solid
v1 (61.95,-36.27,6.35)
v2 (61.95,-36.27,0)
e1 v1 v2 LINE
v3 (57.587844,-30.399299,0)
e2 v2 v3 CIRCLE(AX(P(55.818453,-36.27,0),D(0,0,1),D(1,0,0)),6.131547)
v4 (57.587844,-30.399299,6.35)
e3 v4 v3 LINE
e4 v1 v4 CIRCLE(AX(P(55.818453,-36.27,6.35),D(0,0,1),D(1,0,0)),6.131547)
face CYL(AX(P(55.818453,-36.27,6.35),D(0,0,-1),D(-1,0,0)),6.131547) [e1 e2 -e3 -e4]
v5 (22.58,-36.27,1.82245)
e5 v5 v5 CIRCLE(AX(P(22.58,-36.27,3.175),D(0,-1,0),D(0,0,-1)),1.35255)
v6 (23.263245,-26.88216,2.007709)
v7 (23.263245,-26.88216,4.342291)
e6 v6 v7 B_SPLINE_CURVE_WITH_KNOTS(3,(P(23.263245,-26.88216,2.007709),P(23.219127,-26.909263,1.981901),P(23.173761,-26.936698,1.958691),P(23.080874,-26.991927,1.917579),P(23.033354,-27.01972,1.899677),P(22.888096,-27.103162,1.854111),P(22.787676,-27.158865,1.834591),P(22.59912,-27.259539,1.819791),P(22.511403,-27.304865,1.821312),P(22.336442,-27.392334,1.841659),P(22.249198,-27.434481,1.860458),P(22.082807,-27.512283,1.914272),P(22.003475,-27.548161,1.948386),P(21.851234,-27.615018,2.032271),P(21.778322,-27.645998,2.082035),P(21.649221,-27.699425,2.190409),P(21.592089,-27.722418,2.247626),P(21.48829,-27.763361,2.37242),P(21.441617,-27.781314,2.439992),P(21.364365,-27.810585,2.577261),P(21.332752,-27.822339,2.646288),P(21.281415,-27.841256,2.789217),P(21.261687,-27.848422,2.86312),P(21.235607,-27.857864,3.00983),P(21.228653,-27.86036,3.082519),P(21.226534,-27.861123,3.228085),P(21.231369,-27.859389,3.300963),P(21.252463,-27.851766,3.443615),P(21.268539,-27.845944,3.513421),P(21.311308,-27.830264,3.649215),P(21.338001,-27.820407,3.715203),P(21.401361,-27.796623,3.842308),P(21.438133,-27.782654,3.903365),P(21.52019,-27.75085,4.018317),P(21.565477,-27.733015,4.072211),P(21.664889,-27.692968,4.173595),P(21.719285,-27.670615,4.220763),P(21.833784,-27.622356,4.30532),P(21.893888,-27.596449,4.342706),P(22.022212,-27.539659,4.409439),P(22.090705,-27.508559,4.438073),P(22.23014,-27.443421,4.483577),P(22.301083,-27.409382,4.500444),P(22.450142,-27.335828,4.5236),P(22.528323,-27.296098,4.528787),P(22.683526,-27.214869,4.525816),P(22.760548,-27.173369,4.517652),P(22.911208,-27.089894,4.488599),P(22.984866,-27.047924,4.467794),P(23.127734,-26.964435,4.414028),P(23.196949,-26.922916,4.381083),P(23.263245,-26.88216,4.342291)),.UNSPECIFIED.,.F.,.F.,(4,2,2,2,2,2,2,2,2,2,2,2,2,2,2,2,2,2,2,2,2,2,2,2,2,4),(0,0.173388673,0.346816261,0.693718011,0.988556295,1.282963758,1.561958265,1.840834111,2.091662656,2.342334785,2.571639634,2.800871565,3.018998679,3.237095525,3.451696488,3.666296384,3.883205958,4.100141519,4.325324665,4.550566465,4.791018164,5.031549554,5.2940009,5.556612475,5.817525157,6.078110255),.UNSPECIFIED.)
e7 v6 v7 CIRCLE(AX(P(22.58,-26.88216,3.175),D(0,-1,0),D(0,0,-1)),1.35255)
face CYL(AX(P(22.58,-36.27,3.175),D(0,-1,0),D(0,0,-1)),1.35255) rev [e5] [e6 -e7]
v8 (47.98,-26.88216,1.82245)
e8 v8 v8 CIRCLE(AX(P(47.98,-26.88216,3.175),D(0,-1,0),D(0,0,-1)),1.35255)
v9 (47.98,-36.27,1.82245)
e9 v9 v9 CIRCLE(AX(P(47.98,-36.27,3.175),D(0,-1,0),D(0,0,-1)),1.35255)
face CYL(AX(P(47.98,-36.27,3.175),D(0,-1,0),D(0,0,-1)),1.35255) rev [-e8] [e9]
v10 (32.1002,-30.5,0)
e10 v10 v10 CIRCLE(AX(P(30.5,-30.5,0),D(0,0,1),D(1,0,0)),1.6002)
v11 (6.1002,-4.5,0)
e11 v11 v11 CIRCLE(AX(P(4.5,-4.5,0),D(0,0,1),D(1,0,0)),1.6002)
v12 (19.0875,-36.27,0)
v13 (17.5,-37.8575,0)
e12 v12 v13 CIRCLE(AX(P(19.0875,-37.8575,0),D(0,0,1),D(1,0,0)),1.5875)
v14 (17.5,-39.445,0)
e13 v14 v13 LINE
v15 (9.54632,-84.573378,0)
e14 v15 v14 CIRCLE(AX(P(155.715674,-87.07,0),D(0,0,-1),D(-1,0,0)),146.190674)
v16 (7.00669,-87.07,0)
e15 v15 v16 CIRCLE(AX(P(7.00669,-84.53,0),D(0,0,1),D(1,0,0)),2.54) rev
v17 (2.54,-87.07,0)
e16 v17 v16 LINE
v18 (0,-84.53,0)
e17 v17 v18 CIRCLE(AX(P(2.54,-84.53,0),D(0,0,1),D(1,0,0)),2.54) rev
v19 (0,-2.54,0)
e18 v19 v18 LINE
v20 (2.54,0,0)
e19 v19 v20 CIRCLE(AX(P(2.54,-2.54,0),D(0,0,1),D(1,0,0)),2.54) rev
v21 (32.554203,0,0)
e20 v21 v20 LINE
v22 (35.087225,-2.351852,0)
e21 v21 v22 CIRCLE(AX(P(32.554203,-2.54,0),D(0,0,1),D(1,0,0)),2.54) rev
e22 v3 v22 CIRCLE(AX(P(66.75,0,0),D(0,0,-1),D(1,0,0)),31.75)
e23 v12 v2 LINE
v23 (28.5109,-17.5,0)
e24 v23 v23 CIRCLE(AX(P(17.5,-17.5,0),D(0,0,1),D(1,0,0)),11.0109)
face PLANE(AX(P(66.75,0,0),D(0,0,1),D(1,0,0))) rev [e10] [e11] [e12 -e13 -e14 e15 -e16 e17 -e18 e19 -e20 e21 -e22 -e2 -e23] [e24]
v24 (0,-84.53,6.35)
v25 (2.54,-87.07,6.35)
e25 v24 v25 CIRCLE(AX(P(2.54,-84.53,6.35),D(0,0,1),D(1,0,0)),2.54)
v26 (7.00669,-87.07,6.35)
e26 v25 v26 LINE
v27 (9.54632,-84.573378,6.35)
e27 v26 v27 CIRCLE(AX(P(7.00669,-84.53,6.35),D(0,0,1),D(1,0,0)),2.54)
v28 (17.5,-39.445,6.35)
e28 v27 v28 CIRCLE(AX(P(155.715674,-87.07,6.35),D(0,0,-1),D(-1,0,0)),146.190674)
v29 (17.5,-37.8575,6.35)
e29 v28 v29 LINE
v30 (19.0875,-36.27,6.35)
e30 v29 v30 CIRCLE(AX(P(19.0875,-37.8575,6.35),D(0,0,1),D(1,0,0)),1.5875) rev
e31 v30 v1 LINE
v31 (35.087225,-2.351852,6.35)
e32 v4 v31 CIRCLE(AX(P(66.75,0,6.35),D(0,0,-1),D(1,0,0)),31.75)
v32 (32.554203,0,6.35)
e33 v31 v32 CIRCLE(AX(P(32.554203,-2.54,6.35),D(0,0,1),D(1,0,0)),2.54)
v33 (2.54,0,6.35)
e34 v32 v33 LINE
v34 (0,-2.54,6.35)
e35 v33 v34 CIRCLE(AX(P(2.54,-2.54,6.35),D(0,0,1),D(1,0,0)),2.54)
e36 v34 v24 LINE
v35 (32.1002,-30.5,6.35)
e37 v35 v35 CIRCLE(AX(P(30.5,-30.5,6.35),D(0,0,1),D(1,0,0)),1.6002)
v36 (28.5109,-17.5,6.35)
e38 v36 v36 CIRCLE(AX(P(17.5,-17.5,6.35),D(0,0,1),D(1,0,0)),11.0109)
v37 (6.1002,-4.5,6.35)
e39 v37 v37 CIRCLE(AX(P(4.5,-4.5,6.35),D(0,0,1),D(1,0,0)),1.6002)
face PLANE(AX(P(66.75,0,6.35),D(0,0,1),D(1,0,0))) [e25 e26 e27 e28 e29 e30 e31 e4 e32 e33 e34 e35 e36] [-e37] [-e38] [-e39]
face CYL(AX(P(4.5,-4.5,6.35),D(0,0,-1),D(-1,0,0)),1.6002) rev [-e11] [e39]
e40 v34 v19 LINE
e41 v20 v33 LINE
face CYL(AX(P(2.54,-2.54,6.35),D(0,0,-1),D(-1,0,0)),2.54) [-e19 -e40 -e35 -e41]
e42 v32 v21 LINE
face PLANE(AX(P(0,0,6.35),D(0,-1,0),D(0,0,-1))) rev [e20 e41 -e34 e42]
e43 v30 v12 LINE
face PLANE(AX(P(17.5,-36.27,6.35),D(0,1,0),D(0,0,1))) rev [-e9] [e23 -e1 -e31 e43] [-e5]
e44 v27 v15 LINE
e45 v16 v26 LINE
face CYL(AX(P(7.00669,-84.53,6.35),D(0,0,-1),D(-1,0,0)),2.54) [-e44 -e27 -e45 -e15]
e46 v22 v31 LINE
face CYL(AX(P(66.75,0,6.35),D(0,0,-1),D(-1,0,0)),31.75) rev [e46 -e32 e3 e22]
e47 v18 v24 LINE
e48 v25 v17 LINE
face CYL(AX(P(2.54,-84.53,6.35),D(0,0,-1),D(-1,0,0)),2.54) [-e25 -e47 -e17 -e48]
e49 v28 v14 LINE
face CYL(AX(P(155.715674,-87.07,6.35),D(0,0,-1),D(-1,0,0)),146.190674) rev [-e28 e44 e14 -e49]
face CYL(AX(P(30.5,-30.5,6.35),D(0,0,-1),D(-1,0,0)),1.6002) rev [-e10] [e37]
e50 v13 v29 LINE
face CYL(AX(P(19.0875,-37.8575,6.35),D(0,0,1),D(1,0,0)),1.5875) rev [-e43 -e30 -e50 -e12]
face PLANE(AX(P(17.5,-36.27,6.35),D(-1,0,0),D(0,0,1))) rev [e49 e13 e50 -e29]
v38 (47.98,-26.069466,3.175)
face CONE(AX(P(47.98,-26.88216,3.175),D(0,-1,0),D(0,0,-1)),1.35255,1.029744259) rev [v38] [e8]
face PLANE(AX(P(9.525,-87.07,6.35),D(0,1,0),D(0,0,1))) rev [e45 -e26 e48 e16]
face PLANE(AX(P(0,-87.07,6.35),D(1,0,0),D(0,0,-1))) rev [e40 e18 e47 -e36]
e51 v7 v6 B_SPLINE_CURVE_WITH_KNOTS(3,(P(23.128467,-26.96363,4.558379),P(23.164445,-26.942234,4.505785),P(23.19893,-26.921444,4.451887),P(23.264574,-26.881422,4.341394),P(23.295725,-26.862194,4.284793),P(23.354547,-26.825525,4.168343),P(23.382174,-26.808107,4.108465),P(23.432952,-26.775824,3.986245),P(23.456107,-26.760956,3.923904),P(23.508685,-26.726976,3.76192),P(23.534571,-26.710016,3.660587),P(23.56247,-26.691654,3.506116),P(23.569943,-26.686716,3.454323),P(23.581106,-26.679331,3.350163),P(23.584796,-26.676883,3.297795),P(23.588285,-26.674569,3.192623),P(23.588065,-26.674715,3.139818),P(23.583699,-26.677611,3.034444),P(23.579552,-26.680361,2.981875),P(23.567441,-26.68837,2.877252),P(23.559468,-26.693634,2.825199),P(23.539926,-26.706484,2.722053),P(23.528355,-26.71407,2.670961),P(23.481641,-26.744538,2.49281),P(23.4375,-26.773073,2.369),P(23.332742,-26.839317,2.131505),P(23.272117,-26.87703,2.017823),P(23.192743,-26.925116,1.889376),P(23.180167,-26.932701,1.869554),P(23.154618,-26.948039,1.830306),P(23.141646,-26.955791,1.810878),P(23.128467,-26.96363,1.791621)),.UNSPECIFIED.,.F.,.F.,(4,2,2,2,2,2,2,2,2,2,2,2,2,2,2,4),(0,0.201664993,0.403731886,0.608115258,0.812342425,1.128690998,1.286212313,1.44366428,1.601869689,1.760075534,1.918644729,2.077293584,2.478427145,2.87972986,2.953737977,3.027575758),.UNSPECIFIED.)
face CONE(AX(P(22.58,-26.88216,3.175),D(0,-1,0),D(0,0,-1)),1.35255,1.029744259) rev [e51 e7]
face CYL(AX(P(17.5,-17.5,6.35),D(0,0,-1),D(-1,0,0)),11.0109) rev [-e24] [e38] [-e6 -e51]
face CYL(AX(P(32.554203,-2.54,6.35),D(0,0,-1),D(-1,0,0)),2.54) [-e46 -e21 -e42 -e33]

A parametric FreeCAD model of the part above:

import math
import FreeCAD as App
import Part
import Sketcher

V = App.Vector
Q = App.Units.Quantity


def edges_at(feature, points):
    """Names of the edges that pass closest to the given points."""
    edges = feature.Shape.Edges
    near = lambda p: min(range(len(edges)), key=lambda i: edges[i].distToShape(Part.Vertex(*p))[0])
    return sorted({f"Edge{near(p) + 1}" for p in points})

doc = App.newDocument("Part")
body = doc.addObject("PartDesign::Body", "Body")

sketch1 = body.newObject("Sketcher::SketchObject", "Sketch")
sketch1.AttachmentSupport = (doc.getObject("XY_Plane"), [""])
sketch1.MapMode = "FlatFace"
sketch1.addGeometry(Part.LineSegment(V(35, 0, 0), V(0, 0, 0)), False)
sketch1.addGeometry(Part.LineSegment(V(0, 0, 0), V(0, -87.1, 0)), False)
sketch1.addGeometry(Part.LineSegment(V(0, -87.1, 0), V(9.5, -87.1, 0)), False)
sketch1.addGeometry(Part.ArcOfCircle(Part.Circle(V(155.7, -87.1, 0), V(0, 0, 1), 146.2), math.radians(160.99), math.radians(180)), False)
sketch1.addGeometry(Part.LineSegment(V(17.5, -39.4, 0), V(17.5, -36.3, 0)), False)
sketch1.addGeometry(Part.LineSegment(V(17.5, -36.3, 0), V(62, -36.3, 0)), False)
sketch1.addGeometry(Part.ArcOfCircle(Part.Circle(V(55.8, -36.3, 0), V(0, 0, 1), 6.1), math.radians(0), math.radians(73)), False)
sketch1.addGeometry(Part.ArcOfCircle(Part.Circle(V(66.8, 0, 0), V(0, 0, 1), 31.8), math.radians(180), math.radians(253)), False)
sketch1.addGeometry(Part.Circle(V(30.5, -30.5, 0), V(0, 0, 1), 1.6), False)
sketch1.addGeometry(Part.Circle(V(17.5, -17.5, 0), V(0, 0, 1), 11), False)
sketch1.addGeometry(Part.Circle(V(4.5, -4.5, 0), V(0, 0, 1), 1.6), False)
sketch1.addConstraint(Sketcher.Constraint("Coincident", 0, 2, 1, 1))
sketch1.addConstraint(Sketcher.Constraint("Coincident", 1, 2, 2, 1))
sketch1.addConstraint(Sketcher.Constraint("Coincident", 2, 2, 3, 2))
sketch1.addConstraint(Sketcher.Constraint("Coincident", 3, 1, 4, 1))
sketch1.addConstraint(Sketcher.Constraint("Coincident", 4, 2, 5, 1))
sketch1.addConstraint(Sketcher.Constraint("Coincident", 5, 2, 6, 1))
sketch1.addConstraint(Sketcher.Constraint("Tangent", 6, 2, 7, 2))
sketch1.addConstraint(Sketcher.Constraint("Coincident", 7, 1, 0, 1))
sketch1.addConstraint(Sketcher.Constraint("Horizontal", 0))
sketch1.addConstraint(Sketcher.Constraint("Vertical", 1))
sketch1.addConstraint(Sketcher.Constraint("Horizontal", 2))
sketch1.addConstraint(Sketcher.Constraint("Vertical", 4))
sketch1.addConstraint(Sketcher.Constraint("Horizontal", 5))
sketch1.addConstraint(Sketcher.Constraint("Coincident", 0, 2, -1, 1))
sketch1.addConstraint(Sketcher.Constraint("Equal", 8, 10))
sketch1.addConstraint(Sketcher.Constraint("PointOnObject", 7, 3, -1))
sketch1.addConstraint(Sketcher.Constraint("Horizontal", 3, 3, 1, 2))
sketch1.addConstraint(Sketcher.Constraint("Horizontal", 6, 3, 4, 2))
sketch1.addConstraint(Sketcher.Constraint("Vertical", 9, 3, 3, 1))
sketch1.addConstraint(Sketcher.Constraint("Radius", 7, Q("1.25 in")))
sketch1.addConstraint(Sketcher.Constraint("Diameter", 8, Q("0.126 in")))
sketch1.addConstraint(Sketcher.Constraint("Diameter", 9, Q("0.867 in")))
sketch1.addConstraint(Sketcher.Constraint("DistanceY", 3, 3, 6, 3, Q("2 in")))
sketch1.addConstraint(Sketcher.Constraint("DistanceX", 5, 1, 5, 2, Q("1.75 in")))
sketch1.addConstraint(Sketcher.Constraint("DistanceX", 2, 1, 2, 2, Q("0.375 in")))
sketch1.addConstraint(Sketcher.Constraint("DistanceY", 4, 1, 4, 2, Q("0.125 in")))
sketch1.addConstraint(Sketcher.Constraint("DistanceX", 0, 2, 0, 1, Q("35 mm")))
sketch1.addConstraint(Sketcher.Constraint("DistanceY", 1, 2, 1, 1, Q("87.07 mm")))
sketch1.addConstraint(Sketcher.Constraint("Radius", 3, Q("146.190674 mm")))
sketch1.addConstraint(Sketcher.Constraint("DistanceX", -1, 1, 8, 3, Q("30.5 mm")))
sketch1.addConstraint(Sketcher.Constraint("DistanceY", 8, 3, -1, 1, Q("30.5 mm")))
sketch1.addConstraint(Sketcher.Constraint("DistanceY", 9, 3, -1, 1, Q("17.5 mm")))
sketch1.addConstraint(Sketcher.Constraint("DistanceX", -1, 1, 10, 3, Q("4.5 mm")))
sketch1.addConstraint(Sketcher.Constraint("DistanceY", 10, 3, -1, 1, Q("4.5 mm")))
pad1 = body.newObject("PartDesign::Pad", "Pad")
pad1.Profile = sketch1
pad1.Length = Q("0.25 in")
doc.recompute()

fillet = body.newObject("PartDesign::Fillet", "Fillet")
fillet.Base = (pad1, edges_at(pad1, [
    (0, 0, 3.175),
    (35, 0, 3.175),
    (9.525, -87.07, 3.175),
    (0, -87.07, 3.175),
]))
fillet.Radius = Q("0.1 in")

sketch2 = body.newObject("Sketcher::SketchObject", "Sketch001")
sketch2.AttachmentSupport = (doc.getObject("XZ_Plane"), [""])
sketch2.MapMode = "FlatFace"
sketch2.AttachmentOffset = App.Placement(V(0, 0, 36.27), App.Rotation())
sketch2.addGeometry(Part.Circle(V(22.6, 3.2, 0), V(0, 0, 1), 1.4), False)
sketch2.addGeometry(Part.Circle(V(48, 3.2, 0), V(0, 0, 1), 1.4), False)
sketch2.addConstraint(Sketcher.Constraint("Equal", 0, 1))
sketch2.addConstraint(Sketcher.Constraint("Horizontal", 0, 3, 1, 3))
sketch2.addConstraint(Sketcher.Constraint("DistanceX", 0, 3, 1, 3, Q("1 in")))
sketch2.addConstraint(Sketcher.Constraint("Diameter", 0, Q("0.1065 in")))
sketch2.addConstraint(Sketcher.Constraint("DistanceY", -1, 1, 0, 3, Q("0.125 in")))
sketch2.addConstraint(Sketcher.Constraint("DistanceX", -1, 1, 0, 3, Q("22.58 mm")))
doc.recompute()
hole = body.newObject("PartDesign::Hole", "Hole")
hole.Profile = sketch2
hole.ThreadType = "None"
hole.Diameter = Q("0.1065 in")
hole.DepthType = "Dimension"
hole.Depth = Q("0.3696 in")
hole.DrillPoint = "Angled"
hole.DrillPointAngle = 118
doc.recompute()

fillet2 = body.newObject("PartDesign::Fillet", "Fillet001")
fillet2.Base = (hole, edges_at(hole, [(17.5, -36.27, 3.175)]))
fillet2.Radius = Q("0.0625 in")

doc.recompute()
